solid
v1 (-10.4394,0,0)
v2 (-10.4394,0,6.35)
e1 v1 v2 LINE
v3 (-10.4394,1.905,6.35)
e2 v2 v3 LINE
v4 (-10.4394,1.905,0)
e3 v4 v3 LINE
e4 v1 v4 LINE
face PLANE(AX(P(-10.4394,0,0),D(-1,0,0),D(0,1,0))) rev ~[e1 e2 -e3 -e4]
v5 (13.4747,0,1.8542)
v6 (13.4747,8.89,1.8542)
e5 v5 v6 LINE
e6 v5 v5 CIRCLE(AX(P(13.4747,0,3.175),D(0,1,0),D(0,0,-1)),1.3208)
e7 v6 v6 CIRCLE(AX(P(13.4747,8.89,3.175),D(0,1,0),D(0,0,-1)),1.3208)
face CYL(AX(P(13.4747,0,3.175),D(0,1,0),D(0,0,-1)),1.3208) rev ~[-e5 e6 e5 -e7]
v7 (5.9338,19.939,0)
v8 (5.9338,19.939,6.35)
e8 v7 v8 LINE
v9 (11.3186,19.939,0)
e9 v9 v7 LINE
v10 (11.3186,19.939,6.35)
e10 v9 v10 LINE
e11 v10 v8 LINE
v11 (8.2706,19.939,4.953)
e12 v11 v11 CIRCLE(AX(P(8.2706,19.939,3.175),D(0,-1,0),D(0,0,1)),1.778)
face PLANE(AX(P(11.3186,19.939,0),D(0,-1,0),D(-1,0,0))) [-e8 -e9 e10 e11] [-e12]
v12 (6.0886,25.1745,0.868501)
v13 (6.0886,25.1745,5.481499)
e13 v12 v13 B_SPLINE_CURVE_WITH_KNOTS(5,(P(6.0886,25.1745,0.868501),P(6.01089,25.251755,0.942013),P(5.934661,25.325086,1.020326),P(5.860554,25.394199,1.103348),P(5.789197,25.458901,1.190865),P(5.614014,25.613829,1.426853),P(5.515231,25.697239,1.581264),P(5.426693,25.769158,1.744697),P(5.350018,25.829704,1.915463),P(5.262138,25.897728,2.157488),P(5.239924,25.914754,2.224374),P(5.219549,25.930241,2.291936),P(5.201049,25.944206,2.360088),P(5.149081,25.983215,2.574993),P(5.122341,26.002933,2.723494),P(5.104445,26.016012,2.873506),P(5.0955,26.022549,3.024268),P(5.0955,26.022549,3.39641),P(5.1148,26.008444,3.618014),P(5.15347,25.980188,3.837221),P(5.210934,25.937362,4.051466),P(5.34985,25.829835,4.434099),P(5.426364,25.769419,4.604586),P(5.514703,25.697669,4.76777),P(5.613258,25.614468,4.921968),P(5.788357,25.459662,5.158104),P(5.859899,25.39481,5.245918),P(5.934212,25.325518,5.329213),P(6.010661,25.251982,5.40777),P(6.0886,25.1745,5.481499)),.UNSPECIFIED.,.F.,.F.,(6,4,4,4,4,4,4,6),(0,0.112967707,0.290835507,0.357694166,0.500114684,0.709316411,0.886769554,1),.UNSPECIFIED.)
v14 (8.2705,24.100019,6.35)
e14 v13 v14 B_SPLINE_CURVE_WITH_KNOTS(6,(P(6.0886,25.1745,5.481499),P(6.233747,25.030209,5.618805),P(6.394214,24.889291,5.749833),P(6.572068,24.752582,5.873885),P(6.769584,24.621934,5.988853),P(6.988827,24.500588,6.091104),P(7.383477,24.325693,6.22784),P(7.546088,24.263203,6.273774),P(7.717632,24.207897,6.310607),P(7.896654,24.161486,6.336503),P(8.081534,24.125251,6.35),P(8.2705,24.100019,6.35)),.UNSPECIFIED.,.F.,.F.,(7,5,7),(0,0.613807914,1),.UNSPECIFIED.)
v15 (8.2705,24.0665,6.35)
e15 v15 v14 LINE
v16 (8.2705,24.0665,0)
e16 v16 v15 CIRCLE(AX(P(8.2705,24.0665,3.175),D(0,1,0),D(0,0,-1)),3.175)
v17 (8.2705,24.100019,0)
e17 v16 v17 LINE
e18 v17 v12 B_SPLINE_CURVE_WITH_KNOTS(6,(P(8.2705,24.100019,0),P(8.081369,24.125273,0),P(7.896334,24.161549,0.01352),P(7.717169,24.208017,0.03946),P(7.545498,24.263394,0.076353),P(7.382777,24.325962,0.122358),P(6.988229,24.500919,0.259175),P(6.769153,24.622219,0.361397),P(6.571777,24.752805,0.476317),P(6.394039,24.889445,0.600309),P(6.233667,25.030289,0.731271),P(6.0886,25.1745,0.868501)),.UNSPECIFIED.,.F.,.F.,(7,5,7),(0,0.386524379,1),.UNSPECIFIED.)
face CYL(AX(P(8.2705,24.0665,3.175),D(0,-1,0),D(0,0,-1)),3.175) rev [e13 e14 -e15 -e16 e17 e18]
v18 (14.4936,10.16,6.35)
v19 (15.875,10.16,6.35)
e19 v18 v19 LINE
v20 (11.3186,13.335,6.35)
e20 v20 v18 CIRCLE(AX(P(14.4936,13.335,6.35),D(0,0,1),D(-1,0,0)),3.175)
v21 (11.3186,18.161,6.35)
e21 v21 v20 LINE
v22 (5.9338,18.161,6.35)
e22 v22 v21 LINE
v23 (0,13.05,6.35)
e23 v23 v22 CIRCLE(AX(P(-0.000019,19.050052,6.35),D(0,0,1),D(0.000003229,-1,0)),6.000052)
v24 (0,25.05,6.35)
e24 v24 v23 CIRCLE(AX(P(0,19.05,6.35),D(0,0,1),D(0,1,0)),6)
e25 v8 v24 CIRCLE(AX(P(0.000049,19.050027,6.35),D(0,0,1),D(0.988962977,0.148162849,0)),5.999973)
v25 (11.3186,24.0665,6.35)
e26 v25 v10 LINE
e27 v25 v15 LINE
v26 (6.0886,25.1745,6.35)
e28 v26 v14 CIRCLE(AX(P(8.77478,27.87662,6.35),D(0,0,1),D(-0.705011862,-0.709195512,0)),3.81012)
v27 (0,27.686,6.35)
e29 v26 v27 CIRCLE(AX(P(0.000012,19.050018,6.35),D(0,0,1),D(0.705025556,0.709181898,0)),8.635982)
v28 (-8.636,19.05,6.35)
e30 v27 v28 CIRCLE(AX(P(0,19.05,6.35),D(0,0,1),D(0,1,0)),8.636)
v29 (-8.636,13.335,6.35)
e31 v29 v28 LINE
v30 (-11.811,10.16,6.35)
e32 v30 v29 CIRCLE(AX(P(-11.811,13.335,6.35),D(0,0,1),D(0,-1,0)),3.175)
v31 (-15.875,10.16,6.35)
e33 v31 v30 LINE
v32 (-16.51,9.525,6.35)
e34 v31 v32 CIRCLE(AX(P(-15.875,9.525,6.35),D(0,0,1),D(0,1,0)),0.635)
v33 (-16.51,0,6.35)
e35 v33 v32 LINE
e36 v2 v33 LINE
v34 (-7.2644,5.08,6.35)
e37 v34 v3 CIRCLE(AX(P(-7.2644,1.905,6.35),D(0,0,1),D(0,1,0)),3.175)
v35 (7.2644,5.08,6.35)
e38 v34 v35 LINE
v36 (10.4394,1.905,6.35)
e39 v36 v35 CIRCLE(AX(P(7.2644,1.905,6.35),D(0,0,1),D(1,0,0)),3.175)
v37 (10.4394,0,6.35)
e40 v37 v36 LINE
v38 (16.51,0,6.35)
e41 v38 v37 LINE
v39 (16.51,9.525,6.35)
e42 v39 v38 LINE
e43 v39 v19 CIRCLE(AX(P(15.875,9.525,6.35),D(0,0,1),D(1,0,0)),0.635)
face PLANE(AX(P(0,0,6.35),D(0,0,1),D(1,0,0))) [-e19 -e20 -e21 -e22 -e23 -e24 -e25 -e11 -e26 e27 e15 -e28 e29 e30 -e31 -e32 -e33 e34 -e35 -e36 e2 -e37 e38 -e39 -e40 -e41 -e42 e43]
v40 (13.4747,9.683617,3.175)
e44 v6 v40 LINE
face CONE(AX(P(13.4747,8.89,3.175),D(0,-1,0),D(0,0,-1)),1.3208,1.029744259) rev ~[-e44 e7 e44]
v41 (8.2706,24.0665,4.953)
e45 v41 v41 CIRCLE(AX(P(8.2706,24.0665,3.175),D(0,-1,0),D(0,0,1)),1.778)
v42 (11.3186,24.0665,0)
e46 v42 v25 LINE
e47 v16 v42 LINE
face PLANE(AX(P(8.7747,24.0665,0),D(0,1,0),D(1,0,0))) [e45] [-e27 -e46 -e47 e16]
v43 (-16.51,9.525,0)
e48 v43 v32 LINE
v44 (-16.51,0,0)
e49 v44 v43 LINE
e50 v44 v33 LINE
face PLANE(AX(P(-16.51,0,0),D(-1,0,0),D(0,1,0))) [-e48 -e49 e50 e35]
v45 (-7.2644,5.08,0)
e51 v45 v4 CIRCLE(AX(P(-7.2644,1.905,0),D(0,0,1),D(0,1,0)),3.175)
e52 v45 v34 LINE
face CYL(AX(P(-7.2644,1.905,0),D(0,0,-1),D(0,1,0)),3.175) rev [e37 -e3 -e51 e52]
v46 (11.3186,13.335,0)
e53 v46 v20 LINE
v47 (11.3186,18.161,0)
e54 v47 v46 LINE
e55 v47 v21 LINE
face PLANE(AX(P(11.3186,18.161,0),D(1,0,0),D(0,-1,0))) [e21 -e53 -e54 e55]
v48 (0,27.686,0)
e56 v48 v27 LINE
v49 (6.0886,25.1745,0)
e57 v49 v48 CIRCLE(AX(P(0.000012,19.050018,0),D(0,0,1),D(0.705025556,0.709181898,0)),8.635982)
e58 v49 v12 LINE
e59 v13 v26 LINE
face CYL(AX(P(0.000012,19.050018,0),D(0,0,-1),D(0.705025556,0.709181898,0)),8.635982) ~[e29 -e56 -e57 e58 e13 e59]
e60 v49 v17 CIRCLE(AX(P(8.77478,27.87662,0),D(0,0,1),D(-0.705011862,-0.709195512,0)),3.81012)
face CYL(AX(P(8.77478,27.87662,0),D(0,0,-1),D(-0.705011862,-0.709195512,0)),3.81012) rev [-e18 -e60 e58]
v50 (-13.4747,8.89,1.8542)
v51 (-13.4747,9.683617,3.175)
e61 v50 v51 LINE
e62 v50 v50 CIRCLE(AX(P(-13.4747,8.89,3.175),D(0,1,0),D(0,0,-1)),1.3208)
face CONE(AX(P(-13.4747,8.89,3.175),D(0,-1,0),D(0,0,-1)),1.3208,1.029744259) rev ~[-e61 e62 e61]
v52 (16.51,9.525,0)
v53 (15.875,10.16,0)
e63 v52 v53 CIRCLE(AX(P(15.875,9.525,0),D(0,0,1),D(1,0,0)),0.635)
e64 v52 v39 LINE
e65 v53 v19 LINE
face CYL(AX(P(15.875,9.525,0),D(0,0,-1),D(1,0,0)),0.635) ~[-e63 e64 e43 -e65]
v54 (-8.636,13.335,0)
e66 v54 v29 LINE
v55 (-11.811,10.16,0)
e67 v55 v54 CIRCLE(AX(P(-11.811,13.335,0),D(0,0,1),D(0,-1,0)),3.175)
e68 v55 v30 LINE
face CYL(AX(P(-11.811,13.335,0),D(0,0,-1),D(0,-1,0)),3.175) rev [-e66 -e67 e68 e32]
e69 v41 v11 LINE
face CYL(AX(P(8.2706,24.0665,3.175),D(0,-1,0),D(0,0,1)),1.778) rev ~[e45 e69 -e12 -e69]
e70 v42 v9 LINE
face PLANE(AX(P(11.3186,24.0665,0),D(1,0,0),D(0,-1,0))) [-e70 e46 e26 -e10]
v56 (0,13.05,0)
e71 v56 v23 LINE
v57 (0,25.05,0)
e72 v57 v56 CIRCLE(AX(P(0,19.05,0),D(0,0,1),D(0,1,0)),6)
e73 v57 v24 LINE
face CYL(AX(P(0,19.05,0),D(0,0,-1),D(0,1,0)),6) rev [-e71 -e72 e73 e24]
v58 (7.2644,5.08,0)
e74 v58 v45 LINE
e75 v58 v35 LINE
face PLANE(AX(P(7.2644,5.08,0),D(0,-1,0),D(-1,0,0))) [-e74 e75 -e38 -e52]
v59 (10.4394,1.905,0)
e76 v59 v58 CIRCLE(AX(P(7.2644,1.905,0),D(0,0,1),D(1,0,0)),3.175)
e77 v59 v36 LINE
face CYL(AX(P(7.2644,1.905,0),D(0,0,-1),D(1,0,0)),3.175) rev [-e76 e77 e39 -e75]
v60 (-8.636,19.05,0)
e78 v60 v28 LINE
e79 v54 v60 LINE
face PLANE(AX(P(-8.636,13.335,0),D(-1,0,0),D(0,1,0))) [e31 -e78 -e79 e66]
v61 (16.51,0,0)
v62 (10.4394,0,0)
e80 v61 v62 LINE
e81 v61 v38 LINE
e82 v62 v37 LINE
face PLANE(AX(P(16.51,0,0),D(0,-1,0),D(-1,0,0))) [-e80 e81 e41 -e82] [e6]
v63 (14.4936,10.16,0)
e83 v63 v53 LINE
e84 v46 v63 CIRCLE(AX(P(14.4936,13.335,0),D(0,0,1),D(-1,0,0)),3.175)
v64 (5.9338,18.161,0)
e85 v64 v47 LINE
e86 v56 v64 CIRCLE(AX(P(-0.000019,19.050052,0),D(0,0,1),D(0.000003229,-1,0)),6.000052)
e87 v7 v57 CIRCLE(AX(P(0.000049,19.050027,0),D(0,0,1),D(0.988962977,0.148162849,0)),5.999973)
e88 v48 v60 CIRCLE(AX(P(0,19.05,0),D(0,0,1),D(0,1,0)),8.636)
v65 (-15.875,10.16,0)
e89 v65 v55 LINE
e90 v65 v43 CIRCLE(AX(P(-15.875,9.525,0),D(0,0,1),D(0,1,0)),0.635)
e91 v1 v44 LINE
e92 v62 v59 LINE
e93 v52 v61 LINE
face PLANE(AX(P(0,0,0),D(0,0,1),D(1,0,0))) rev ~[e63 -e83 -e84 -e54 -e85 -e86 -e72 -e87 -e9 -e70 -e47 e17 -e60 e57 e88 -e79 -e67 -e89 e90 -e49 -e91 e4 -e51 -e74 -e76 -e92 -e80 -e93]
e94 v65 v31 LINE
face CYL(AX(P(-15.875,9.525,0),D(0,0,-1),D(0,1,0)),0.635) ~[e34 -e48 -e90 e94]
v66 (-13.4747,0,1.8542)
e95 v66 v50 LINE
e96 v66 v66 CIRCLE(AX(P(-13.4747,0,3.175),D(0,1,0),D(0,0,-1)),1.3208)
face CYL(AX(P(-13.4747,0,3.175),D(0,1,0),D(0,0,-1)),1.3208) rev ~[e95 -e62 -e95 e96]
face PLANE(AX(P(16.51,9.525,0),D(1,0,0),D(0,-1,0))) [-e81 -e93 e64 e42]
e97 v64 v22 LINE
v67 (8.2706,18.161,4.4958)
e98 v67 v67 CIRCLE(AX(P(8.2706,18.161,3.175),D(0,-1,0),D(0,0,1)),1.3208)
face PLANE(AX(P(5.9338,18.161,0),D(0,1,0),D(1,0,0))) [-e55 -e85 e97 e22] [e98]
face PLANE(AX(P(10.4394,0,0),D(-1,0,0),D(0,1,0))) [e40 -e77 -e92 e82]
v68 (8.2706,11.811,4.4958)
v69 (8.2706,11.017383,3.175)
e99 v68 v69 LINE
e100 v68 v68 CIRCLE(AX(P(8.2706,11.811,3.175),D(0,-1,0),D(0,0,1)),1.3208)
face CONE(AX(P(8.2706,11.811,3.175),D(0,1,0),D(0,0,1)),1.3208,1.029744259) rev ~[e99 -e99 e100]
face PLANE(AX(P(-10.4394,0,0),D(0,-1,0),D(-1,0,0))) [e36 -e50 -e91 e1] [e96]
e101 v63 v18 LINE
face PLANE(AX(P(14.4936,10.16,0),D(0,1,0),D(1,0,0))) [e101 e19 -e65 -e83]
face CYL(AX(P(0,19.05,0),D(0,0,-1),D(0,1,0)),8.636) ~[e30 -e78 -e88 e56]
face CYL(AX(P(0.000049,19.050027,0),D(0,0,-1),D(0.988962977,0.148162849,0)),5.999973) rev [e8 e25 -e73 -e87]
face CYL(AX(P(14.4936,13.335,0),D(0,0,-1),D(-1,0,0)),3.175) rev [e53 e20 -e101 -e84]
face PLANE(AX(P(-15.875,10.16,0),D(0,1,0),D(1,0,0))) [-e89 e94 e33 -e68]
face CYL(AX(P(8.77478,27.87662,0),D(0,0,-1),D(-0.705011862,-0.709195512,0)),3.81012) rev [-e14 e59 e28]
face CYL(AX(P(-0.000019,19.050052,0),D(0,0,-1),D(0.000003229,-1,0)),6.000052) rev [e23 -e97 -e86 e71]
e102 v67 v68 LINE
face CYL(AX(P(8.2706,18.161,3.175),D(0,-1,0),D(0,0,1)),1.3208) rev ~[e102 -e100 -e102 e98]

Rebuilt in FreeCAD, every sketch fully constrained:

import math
import FreeCAD as App
import Part
import Sketcher

V = App.Vector
Q = App.Units.Quantity

doc = App.newDocument("Part")
body = doc.addObject("PartDesign::Body", "Body")

sketch1 = body.newObject("Sketcher::SketchObject", "Sketch")
sketch1.AttachmentSupport = (doc.getObject("XY_Plane"), [""])
sketch1.MapMode = "FlatFace"
sketch1.addGeometry([
    Part.ArcOfCircle(Part.Circle(V(0, 19.1, 0), V(0, 0, 1), 6), math.radians(90), math.radians(270)),
    Part.ArcOfCircle(Part.Circle(V(0, 19.1, 0), V(0, 0, 1), 6), math.radians(9), math.radians(90)),
    Part.LineSegment(V(5.9, 19.9, 0), V(11.3, 19.9, 0)),
    Part.LineSegment(V(11.3, 19.9, 0), V(11.3, 24.1, 0)),
    Part.LineSegment(V(11.3, 24.1, 0), V(8.8, 24.1, 0)),
    Part.ArcOfCircle(Part.Circle(V(8.8, 27.9, 0), V(0, 0, 1), 3.8), math.radians(-135), math.radians(-90)),
    Part.ArcOfCircle(Part.Circle(V(0, 19.1, 0), V(0, 0, 1), 8.6), math.radians(45), math.radians(90)),
    Part.ArcOfCircle(Part.Circle(V(0, 19.1, 0), V(0, 0, 1), 8.6), math.radians(90), math.radians(180)),
    Part.LineSegment(V(-8.6, 19.1, 0), V(-8.6, 13.3, 0)),
    Part.ArcOfCircle(Part.Circle(V(-11.8, 13.3, 0), V(0, 0, 1), 3.2), math.radians(-90), math.radians(0)),
    Part.LineSegment(V(-11.8, 10.2, 0), V(-15.9, 10.2, 0)),
    Part.ArcOfCircle(Part.Circle(V(-15.9, 9.5, 0), V(0, 0, 1), 0.6), math.radians(90), math.radians(180)),
    Part.LineSegment(V(-16.5, 9.5, 0), V(-16.5, 0, 0)),
    Part.LineSegment(V(-16.5, 0, 0), V(-10.4, 0, 0)),
    Part.LineSegment(V(-10.4, 0, 0), V(-10.4, 1.9, 0)),
    Part.ArcOfCircle(Part.Circle(V(-7.3, 1.9, 0), V(0, 0, 1), 3.2), math.radians(90), math.radians(180)),
    Part.LineSegment(V(-7.3, 5.1, 0), V(7.3, 5.1, 0)),
    Part.ArcOfCircle(Part.Circle(V(7.3, 1.9, 0), V(0, 0, 1), 3.2), math.radians(0), math.radians(90)),
    Part.LineSegment(V(10.4, 1.9, 0), V(10.4, 0, 0)),
    Part.LineSegment(V(10.4, 0, 0), V(16.5, 0, 0)),
    Part.LineSegment(V(16.5, 0, 0), V(16.5, 9.5, 0)),
    Part.ArcOfCircle(Part.Circle(V(15.9, 9.5, 0), V(0, 0, 1), 0.6), math.radians(0), math.radians(90)),
    Part.LineSegment(V(15.9, 10.2, 0), V(14.5, 10.2, 0)),
    Part.ArcOfCircle(Part.Circle(V(14.5, 13.3, 0), V(0, 0, 1), 3.2), math.radians(180), math.radians(270)),
    Part.LineSegment(V(11.3, 13.3, 0), V(11.3, 18.2, 0)),
    Part.LineSegment(V(11.3, 18.2, 0), V(5.9, 18.2, 0)),
    Part.ArcOfCircle(Part.Circle(V(0, 19.1, 0), V(0, 0, 1), 6), math.radians(-90), math.radians(-9)),
], False)
sketch1.addConstraint([
    Sketcher.Constraint("Tangent", 0, 1, 1, 2),
    Sketcher.Constraint("Coincident", 1, 1, 2, 1),
    Sketcher.Constraint("Coincident", 2, 2, 3, 1),
    Sketcher.Constraint("Coincident", 3, 2, 4, 1),
    Sketcher.Constraint("Tangent", 4, 2, 5, 2),
    Sketcher.Constraint("Tangent", 5, 1, 6, 1),
    Sketcher.Constraint("Tangent", 6, 2, 7, 1),
    Sketcher.Constraint("Tangent", 7, 2, 8, 1),
    Sketcher.Constraint("Tangent", 8, 2, 9, 2),
    Sketcher.Constraint("Tangent", 9, 1, 10, 1),
    Sketcher.Constraint("Tangent", 10, 2, 11, 1),
    Sketcher.Constraint("Tangent", 11, 2, 12, 1),
    Sketcher.Constraint("Coincident", 12, 2, 13, 1),
    Sketcher.Constraint("Coincident", 13, 2, 14, 1),
    Sketcher.Constraint("Tangent", 14, 2, 15, 2),
    Sketcher.Constraint("Tangent", 15, 1, 16, 1),
    Sketcher.Constraint("Tangent", 16, 2, 17, 2),
    Sketcher.Constraint("Tangent", 17, 1, 18, 1),
    Sketcher.Constraint("Coincident", 18, 2, 19, 1),
    Sketcher.Constraint("Coincident", 19, 2, 20, 1),
    Sketcher.Constraint("Tangent", 20, 2, 21, 1),
    Sketcher.Constraint("Tangent", 21, 2, 22, 1),
    Sketcher.Constraint("Tangent", 22, 2, 23, 2),
    Sketcher.Constraint("Tangent", 23, 1, 24, 1),
    Sketcher.Constraint("Coincident", 24, 2, 25, 1),
    Sketcher.Constraint("Coincident", 25, 2, 26, 2),
    Sketcher.Constraint("Tangent", 26, 1, 0, 2),
    Sketcher.Constraint("Horizontal", 2),
    Sketcher.Constraint("Vertical", 3),
    Sketcher.Constraint("Horizontal", 4),
    Sketcher.Constraint("Vertical", 8),
    Sketcher.Constraint("Horizontal", 10),
    Sketcher.Constraint("Vertical", 12),
    Sketcher.Constraint("Horizontal", 13),
    Sketcher.Constraint("Vertical", 14),
    Sketcher.Constraint("Horizontal", 16),
    Sketcher.Constraint("Vertical", 18),
    Sketcher.Constraint("Horizontal", 19),
    Sketcher.Constraint("Vertical", 20),
    Sketcher.Constraint("Horizontal", 22),
    Sketcher.Constraint("Vertical", 24),
    Sketcher.Constraint("Horizontal", 25),
    Sketcher.Constraint("Coincident", 6, 3, 0, 3),
    Sketcher.Constraint("Equal", 0, 1),
    Sketcher.Constraint("Equal", 6, 7),
    Sketcher.Constraint("Equal", 9, 15),
    Sketcher.Constraint("Equal", 15, 17),
    Sketcher.Constraint("Equal", 11, 21),
    Sketcher.Constraint("Equal", 17, 23),
    Sketcher.Constraint("Equal", 1, 26),
    Sketcher.Constraint("Symmetric", 13, 2, 18, 2, -1, 1),
    Sketcher.Constraint("Symmetric", 11, 3, 21, 3, -2),
    Sketcher.Constraint("PointOnObject", 0, 3, -2),
    Sketcher.Constraint("PointOnObject", 0, 1, -2),
    Sketcher.Constraint("PointOnObject", 6, 2, -2),
    Sketcher.Constraint("PointOnObject", 12, 2, -1),
    Sketcher.Constraint("PointOnObject", 26, 1, -2),
    Sketcher.Constraint("Vertical", 3, 2, 23, 1),
    Sketcher.Constraint("Vertical", 1, 1, 25, 2),
    Sketcher.Constraint("Radius", 5, Q("0.15 in")),
    Sketcher.Constraint("Radius", 9, Q("0.125 in")),
    Sketcher.Constraint("Radius", 11, Q("0.025 in")),
    Sketcher.Constraint("DistanceY", -1, 1, 9, 1, Q("0.4 in")),
    Sketcher.Constraint("DistanceY", -1, 1, 15, 1, Q("0.2 in")),
    Sketcher.Constraint("DistanceX", 2, 1, 2, 2, Q("0.212 in")),
    Sketcher.Constraint("DistanceX", 13, 1, 13, 2, Q("0.239 in")),
    Sketcher.Constraint("DistanceY", -1, 1, 0, 3, Q("0.75 in")),
    Sketcher.Constraint("DistanceY", -1, 1, 6, 2, Q("1.09 in")),
    Sketcher.Constraint("Radius", 0, 6.0),
    Sketcher.Constraint("DistanceY", 24, 2, 2, 2, Q("0.07 in")),
    Sketcher.Constraint("DistanceY", 3, 1, 3, 2, Q("0.1625 in")),
    Sketcher.Constraint("DistanceX", 10, 2, 10, 1, Q("0.16 in")),
])
pad1 = body.newObject("PartDesign::Pad", "Pad")
pad1.Profile = sketch1
pad1.Length = Q("0.25 in")

sketch2 = body.newObject("Sketcher::SketchObject", "Sketch001")
sketch2.AttachmentSupport = (doc.getObject("XZ_Plane"), [""])
sketch2.MapMode = "FlatFace"
sketch2.AttachmentOffset = App.Placement(V(0, 0, -0.9475 * 25.4), App.Rotation())
sketch2.addGeometry([
    Part.LineSegment(V(11.3, 0, 0), V(8.3, 0, 0)),
    Part.ArcOfCircle(Part.Circle(V(8.3, 3.2, 0), V(0, 0, 1), 3.2), math.radians(90), math.radians(270)),
    Part.LineSegment(V(8.3, 6.3, 0), V(11.3, 6.3, 0)),
    Part.LineSegment(V(11.3, 6.3, 0), V(11.3, 0, 0)),
], False)
sketch2.addConstraint([
    Sketcher.Constraint("Tangent", 0, 2, 1, 2),
    Sketcher.Constraint("Tangent", 1, 1, 2, 1),
    Sketcher.Constraint("Coincident", 2, 2, 3, 1),
    Sketcher.Constraint("Coincident", 3, 2, 0, 1),
    Sketcher.Constraint("Horizontal", 0),
    Sketcher.Constraint("Horizontal", 2),
    Sketcher.Constraint("Vertical", 3),
    Sketcher.Constraint("PointOnObject", 0, 2, -1),
    Sketcher.Constraint("DistanceX", 0, 2, 0, 1, Q("0.12 in")),
    Sketcher.Constraint("Radius", 1, Q("0.125 in")),
    Sketcher.Constraint("DistanceX", -1, 1, 1, 3, Q("0.3256 in")),
])
pocket1 = body.newObject("PartDesign::Pocket", "Pocket")
pocket1.Profile = sketch2
pocket1.Length = Q("0.25 in")

sketch3 = body.newObject("Sketcher::SketchObject", "Sketch002")
sketch3.AttachmentSupport = (doc.getObject("XZ_Plane"), [""])
sketch3.MapMode = "FlatFace"
sketch3.AttachmentOffset = App.Placement(V(0, 0, -0.9475 * 25.4), App.Rotation())
sketch3.addGeometry(Part.Circle(V(8.3, 3.2, 0), V(0, 0, 1), 1.8), False)
sketch3.addConstraint([
    Sketcher.Constraint("Diameter", 0, Q("0.14 in")),
    Sketcher.Constraint("DistanceY", -1, 1, 0, 3, Q("0.125 in")),
    Sketcher.Constraint("DistanceX", -1, 1, 0, 3, 8.2706),
])
doc.recompute()
hole = body.newObject("PartDesign::Hole", "Hole")
hole.Profile = sketch3
hole.ThreadType = "None"
hole.Diameter = Q("0.14 in")
hole.DepthType = "Dimension"
hole.Depth = Q("0.2 in")
hole.DrillPoint = "Flat"
hole.Reversed = True

sketch4 = body.newObject("Sketcher::SketchObject", "Sketch003")
sketch4.AttachmentSupport = (doc.getObject("XZ_Plane"), [""])
sketch4.MapMode = "FlatFace"
sketch4.AttachmentOffset = App.Placement(V(0, 0, -0.715 * 25.4), App.Rotation())
sketch4.addGeometry(Part.Circle(V(8.3, 3.2, 0), V(0, 0, 1), 1.3), False)
sketch4.addConstraint([
    Sketcher.Constraint("Diameter", 0, Q("0.104 in")),
    Sketcher.Constraint("DistanceY", -1, 1, 0, 3, Q("0.125 in")),
    Sketcher.Constraint("DistanceX", -1, 1, 0, 3, 8.2706),
])
doc.recompute()
hole2 = body.newObject("PartDesign::Hole", "Hole001")
hole2.Profile = sketch4
hole2.ThreadType = "None"
hole2.Diameter = Q("0.104 in")
hole2.DepthType = "Dimension"
hole2.Depth = Q("0.25 in")
hole2.DrillPoint = "Angled"
hole2.DrillPointAngle = 118
hole2.Reversed = True

sketch5 = body.newObject("Sketcher::SketchObject", "Sketch004")
sketch5.AttachmentSupport = (doc.getObject("XZ_Plane"), [""])
sketch5.MapMode = "FlatFace"
sketch5.addGeometry([
    Part.Circle(V(-13.5, 3.2, 0), V(0, 0, 1), 1.3),
    Part.Circle(V(13.5, 3.2, 0), V(0, 0, 1), 1.3),
], False)
sketch5.addConstraint([
    Sketcher.Constraint("Equal", 0, 1),
    Sketcher.Constraint("Symmetric", 0, 3, 1, 3, -2),
    Sketcher.Constraint("Diameter", 0, Q("0.104 in")),
    Sketcher.Constraint("DistanceY", -1, 1, 0, 3, Q("0.125 in")),
    Sketcher.Constraint("DistanceX", 0, 3, 1, 3, Q("1.061 in")),
])
doc.recompute()
hole3 = body.newObject("PartDesign::Hole", "Hole002")
hole3.Profile = sketch5
hole3.ThreadType = "None"
hole3.Diameter = Q("0.104 in")
hole3.DepthType = "Dimension"
hole3.Depth = Q("0.35 in")
hole3.DrillPoint = "Angled"
hole3.DrillPointAngle = 118

doc.recompute()
